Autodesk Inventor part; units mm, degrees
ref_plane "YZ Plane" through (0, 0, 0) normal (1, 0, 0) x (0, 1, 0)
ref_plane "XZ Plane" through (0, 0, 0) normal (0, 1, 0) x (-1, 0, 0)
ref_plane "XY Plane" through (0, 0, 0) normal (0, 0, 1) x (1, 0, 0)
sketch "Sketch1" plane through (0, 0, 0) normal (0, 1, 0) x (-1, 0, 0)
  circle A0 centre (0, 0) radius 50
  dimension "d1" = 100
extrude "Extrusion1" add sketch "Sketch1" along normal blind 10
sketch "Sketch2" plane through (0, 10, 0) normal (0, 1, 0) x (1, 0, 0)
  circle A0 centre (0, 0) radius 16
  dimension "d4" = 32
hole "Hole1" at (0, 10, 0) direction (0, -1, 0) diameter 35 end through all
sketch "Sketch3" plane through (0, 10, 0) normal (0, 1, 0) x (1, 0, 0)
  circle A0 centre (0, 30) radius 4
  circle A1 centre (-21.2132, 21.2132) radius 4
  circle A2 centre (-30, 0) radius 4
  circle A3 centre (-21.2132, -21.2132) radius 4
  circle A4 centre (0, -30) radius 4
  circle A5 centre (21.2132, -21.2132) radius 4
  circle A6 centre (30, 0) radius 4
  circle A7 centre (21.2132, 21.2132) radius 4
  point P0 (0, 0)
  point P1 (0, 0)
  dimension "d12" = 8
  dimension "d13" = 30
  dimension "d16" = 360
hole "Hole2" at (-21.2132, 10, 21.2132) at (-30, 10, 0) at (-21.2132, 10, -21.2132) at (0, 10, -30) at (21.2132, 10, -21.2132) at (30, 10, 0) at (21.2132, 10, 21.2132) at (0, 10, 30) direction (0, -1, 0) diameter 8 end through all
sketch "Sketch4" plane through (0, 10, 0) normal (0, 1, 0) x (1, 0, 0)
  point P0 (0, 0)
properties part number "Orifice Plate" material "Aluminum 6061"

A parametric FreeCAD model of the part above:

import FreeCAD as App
import Part
import Sketcher

V = App.Vector

doc = App.newDocument("Part")
body = doc.addObject("PartDesign::Body", "Body")

sketch1 = doc.addObject("Sketcher::SketchObject", "Sketch")
body.addObject(sketch1)
sketch1.AttachmentSupport = (doc.XZ_Plane, [""])
sketch1.MapMode = "FlatFace"
sketch1.addGeometry(Part.Circle(V(0, 0, 0), V(0, 0, 1), 50), False)
sketch1.addConstraint([
    Sketcher.Constraint("Coincident", 0, 3, -1, 1),
    Sketcher.Constraint("Diameter", 0, 100.0),
])
pad1 = doc.addObject("PartDesign::Pad", "Pad")
body.addObject(pad1)
pad1.Profile = sketch1
pad1.Length = 10
pad1.Reversed = True

sketch2 = doc.addObject("Sketcher::SketchObject", "Sketch001")
body.addObject(sketch2)
sketch2.AttachmentSupport = (doc.XZ_Plane, [""])
sketch2.MapMode = "FlatFace"
sketch2.AttachmentOffset = App.Placement(V(0, 0, -10), App.Rotation())
sketch2.addGeometry(Part.Circle(V(0, 0, 0), V(0, 0, 1), 17.5), False)
sketch2.addConstraint([
    Sketcher.Constraint("Coincident", 0, 3, -1, 1),
    Sketcher.Constraint("Diameter", 0, 35.0),
])
doc.recompute()
hole = doc.addObject("PartDesign::Hole", "Hole")
body.addObject(hole)
hole.Profile = sketch2
hole.ThreadType = "None"
hole.Diameter = 35
hole.DepthType = "ThroughAll"
hole.Reversed = True

sketch3 = doc.addObject("Sketcher::SketchObject", "Sketch002")
body.addObject(sketch3)
sketch3.AttachmentSupport = (doc.XZ_Plane, [""])
sketch3.MapMode = "FlatFace"
sketch3.AttachmentOffset = App.Placement(V(0, 0, -10), App.Rotation())
sketch3.addGeometry([
    Part.Circle(V(-21.2132, 21.2132, 0), V(0, 0, 1), 4),
    Part.Circle(V(-30, 0, 0), V(0, 0, 1), 4),
    Part.Circle(V(-21.2132, -21.2132, 0), V(0, 0, 1), 4),
    Part.Circle(V(0, -30, 0), V(0, 0, 1), 4),
    Part.Circle(V(21.2132, -21.2132, 0), V(0, 0, 1), 4),
    Part.Circle(V(30, 0, 0), V(0, 0, 1), 4),
    Part.Circle(V(21.2132, 21.2132, 0), V(0, 0, 1), 4),
    Part.Circle(V(0, 30, 0), V(0, 0, 1), 4),
], False)
sketch3.addConstraint([
    Sketcher.Constraint("Equal", 0, 1),
    Sketcher.Constraint("Equal", 1, 2),
    Sketcher.Constraint("Equal", 2, 3),
    Sketcher.Constraint("Equal", 3, 4),
    Sketcher.Constraint("Equal", 4, 5),
    Sketcher.Constraint("Equal", 5, 6),
    Sketcher.Constraint("Equal", 6, 7),
    Sketcher.Constraint("Symmetric", 0, 3, 4, 3, -1, 1),
    Sketcher.Constraint("Symmetric", 1, 3, 5, 3, -1, 1),
    Sketcher.Constraint("Symmetric", 2, 3, 6, 3, -1, 1),
    Sketcher.Constraint("Symmetric", 3, 3, 7, 3, -1, 1),
    Sketcher.Constraint("Symmetric", 2, 3, 4, 3, -2),
    Sketcher.Constraint("PointOnObject", 1, 3, -1),
    Sketcher.Constraint("PointOnObject", 3, 3, -2),
    Sketcher.Constraint("Diameter", 0, 8.0),
    Sketcher.Constraint("DistanceX", 1, 3, -1, 1, 30.0),
    Sketcher.Constraint("DistanceY", 3, 3, -1, 1, 30.0),
    Sketcher.Constraint("DistanceX", 0, 3, -1, 1, 21.2132),
    Sketcher.Constraint("DistanceY", -1, 1, 0, 3, 21.2132),
])
doc.recompute()
hole2 = doc.addObject("PartDesign::Hole", "Hole001")
body.addObject(hole2)
hole2.Profile = sketch3
hole2.ThreadType = "None"
hole2.Diameter = 8
hole2.DepthType = "ThroughAll"
hole2.Reversed = True

doc.recompute()
